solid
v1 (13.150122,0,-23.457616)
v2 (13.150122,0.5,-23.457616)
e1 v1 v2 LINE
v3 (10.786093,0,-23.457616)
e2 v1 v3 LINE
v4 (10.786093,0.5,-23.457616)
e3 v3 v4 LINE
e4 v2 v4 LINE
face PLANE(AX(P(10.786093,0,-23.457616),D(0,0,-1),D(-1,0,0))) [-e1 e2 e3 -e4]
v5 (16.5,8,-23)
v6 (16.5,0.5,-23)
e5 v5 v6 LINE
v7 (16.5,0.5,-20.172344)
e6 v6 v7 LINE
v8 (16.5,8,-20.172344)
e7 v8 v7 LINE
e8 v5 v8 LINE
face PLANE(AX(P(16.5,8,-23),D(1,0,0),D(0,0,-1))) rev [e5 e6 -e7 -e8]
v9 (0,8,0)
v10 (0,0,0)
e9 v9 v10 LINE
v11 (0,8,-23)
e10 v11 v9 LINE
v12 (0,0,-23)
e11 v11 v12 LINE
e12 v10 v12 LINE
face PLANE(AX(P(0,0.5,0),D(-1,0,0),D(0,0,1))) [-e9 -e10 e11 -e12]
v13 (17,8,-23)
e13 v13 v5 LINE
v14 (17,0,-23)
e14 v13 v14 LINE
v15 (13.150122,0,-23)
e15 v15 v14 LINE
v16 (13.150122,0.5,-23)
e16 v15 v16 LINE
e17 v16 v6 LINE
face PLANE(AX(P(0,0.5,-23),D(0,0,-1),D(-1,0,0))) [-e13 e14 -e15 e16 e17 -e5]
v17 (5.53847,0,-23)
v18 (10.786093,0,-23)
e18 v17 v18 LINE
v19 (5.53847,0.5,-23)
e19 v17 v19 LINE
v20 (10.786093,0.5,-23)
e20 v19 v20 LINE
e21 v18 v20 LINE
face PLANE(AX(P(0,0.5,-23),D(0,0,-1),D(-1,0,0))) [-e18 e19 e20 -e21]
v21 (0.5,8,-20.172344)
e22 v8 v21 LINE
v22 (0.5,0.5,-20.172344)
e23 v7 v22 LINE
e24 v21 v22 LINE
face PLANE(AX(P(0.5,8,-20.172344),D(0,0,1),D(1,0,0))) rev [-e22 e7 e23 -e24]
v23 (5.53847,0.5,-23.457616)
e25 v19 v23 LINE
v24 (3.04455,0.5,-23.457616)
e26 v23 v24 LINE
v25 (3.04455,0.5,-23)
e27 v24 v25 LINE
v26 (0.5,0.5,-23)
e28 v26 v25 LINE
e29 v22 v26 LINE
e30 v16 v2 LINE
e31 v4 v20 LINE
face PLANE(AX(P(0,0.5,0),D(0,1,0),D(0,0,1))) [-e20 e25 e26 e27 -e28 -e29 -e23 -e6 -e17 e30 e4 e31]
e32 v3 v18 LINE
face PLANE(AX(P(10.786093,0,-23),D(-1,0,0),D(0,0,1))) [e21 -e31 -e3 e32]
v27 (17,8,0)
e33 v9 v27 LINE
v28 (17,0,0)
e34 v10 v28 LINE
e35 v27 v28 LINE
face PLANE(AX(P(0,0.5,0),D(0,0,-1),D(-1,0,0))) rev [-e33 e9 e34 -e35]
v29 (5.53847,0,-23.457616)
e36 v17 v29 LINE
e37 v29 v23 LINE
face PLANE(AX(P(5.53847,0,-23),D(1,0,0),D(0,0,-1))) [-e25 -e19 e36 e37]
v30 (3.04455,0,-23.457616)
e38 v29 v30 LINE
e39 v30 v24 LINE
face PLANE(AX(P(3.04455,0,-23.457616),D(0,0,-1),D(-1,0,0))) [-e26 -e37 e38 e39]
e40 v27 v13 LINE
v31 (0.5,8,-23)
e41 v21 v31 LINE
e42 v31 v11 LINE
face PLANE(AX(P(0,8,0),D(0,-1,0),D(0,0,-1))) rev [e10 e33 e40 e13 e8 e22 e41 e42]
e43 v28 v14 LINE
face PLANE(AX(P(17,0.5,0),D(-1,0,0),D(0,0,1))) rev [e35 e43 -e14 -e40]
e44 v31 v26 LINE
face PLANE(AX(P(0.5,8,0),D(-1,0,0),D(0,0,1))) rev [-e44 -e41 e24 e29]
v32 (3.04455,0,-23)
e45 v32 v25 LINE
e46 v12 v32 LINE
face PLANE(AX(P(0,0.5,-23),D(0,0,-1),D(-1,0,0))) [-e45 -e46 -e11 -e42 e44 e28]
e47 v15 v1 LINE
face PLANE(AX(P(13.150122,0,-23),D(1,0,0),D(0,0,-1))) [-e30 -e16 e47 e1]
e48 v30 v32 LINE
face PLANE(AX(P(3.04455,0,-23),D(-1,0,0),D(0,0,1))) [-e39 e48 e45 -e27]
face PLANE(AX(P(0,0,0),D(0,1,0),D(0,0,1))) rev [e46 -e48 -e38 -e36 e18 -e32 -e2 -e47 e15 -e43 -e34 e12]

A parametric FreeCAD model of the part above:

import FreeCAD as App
import Part
import Sketcher

V = App.Vector


def add_polygon(sketch, points):
    """Adds a closed chain of lines whose ends are joined by coincident constraints."""
    first, n = sketch.GeometryCount, len(points)
    for a, b in zip(points, points[1:] + points[:1]):
        sketch.addGeometry(Part.LineSegment(App.Vector(*a, 0), App.Vector(*b, 0)), False)
    for i in range(n):
        sketch.addConstraint(Sketcher.Constraint("Coincident", first + i, 2, first + (i + 1) % n, 1))

doc = App.newDocument("Part")
params = doc.addObject("Spreadsheet::Sheet", "Params")
for row, (alias, value) in enumerate([
    ("sketch1_width", "17 mm"),
    ("sketch1_height", "23 mm"),
    ("pad1_length", "0.5 mm"),
    ("sketch2_height", "23 mm"),
    ("sketch2_width", "0.5 mm"),
    ("pad2_length", "7.5 mm"),
    ("sketch3_width", "16 mm"),
    ("pad3_length", "7.5 mm"),
    ("pad4_length", "0.5 mm"),
], start=1):
    params.set(f"A{row}", alias)
    params.set(f"B{row}", "=" + value)
    params.setAlias(f"B{row}", alias)

body = doc.addObject("PartDesign::Body", "Body")

sketch1 = body.newObject("Sketcher::SketchObject", "Sketch")
sketch1.AttachmentSupport = (doc.getObject("XZ_Plane"), [""])
sketch1.MapMode = "FlatFace"
add_polygon(sketch1, [(0, -23), (0, 0), (17, 0), (17, -23)])
sketch1.addConstraint(Sketcher.Constraint("Vertical", 0))
sketch1.addConstraint(Sketcher.Constraint("Horizontal", 1))
sketch1.addConstraint(Sketcher.Constraint("Vertical", 2))
sketch1.addConstraint(Sketcher.Constraint("Horizontal", 3))
sketch1.addConstraint(Sketcher.Constraint("Coincident", 0, 2, -1, 1))
sketch1.addConstraint(Sketcher.Constraint("DistanceX", 1, 1, 1, 2, 17.0))
sketch1.addConstraint(Sketcher.Constraint("DistanceY", 0, 1, 0, 2, 23.0))
sketch1.setExpression("Constraints[9]", "Params.sketch1_width")
sketch1.setExpression("Constraints[10]", "Params.sketch1_height")
pad1 = body.newObject("PartDesign::Pad", "Pad")
pad1.Profile = sketch1
pad1.setExpression("Length", "Params.pad1_length")
pad1.Reversed = True

sketch2 = body.newObject("Sketcher::SketchObject", "Sketch001")
sketch2.AttachmentSupport = (doc.getObject("XZ_Plane"), [""])
sketch2.MapMode = "FlatFace"
sketch2.AttachmentOffset = App.Placement(V(0, 0, -0.5), App.Rotation())
add_polygon(sketch2, [(0, -23), (0, 0), (0.5, 0), (0.5, -23)])
add_polygon(sketch2, [(16.5, -23), (16.5, 0), (17, 0), (17, -23)])
sketch2.addConstraint(Sketcher.Constraint("Vertical", 0))
sketch2.addConstraint(Sketcher.Constraint("Horizontal", 1))
sketch2.addConstraint(Sketcher.Constraint("Vertical", 2))
sketch2.addConstraint(Sketcher.Constraint("Horizontal", 3))
sketch2.addConstraint(Sketcher.Constraint("Vertical", 4))
sketch2.addConstraint(Sketcher.Constraint("Horizontal", 5))
sketch2.addConstraint(Sketcher.Constraint("Vertical", 6))
sketch2.addConstraint(Sketcher.Constraint("Horizontal", 7))
sketch2.addConstraint(Sketcher.Constraint("Coincident", 0, 2, -1, 1))
sketch2.addConstraint(Sketcher.Constraint("PointOnObject", 4, 2, -1))
sketch2.addConstraint(Sketcher.Constraint("Horizontal", 3, 2, 6, 2))
sketch2.addConstraint(Sketcher.Constraint("Equal", 3, 5))
sketch2.addConstraint(Sketcher.Constraint("DistanceY", 0, 1, 0, 2, 23.0))
sketch2.addConstraint(Sketcher.Constraint("DistanceX", 1, 1, 1, 2, 0.5))
sketch2.addConstraint(Sketcher.Constraint("DistanceX", -1, 1, 5, 2, 17.0))
sketch2.setExpression("Constraints[20]", "Params.sketch2_height")
sketch2.setExpression("Constraints[21]", "Params.sketch2_width")
pad2 = body.newObject("PartDesign::Pad", "Pad001")
pad2.Profile = sketch2
pad2.setExpression("Length", "Params.pad2_length")
pad2.Reversed = True

sketch3 = body.newObject("Sketcher::SketchObject", "Sketch002")
sketch3.AttachmentSupport = (doc.getObject("XZ_Plane"), [""])
sketch3.MapMode = "FlatFace"
sketch3.AttachmentOffset = App.Placement(V(0, 0, -0.5), App.Rotation())
add_polygon(sketch3, [(0, -20), (0, 0), (16, 0), (16, -20)])
sketch3.addConstraint(Sketcher.Constraint("Vertical", 0))
sketch3.addConstraint(Sketcher.Constraint("Horizontal", 1))
sketch3.addConstraint(Sketcher.Constraint("Vertical", 2))
sketch3.addConstraint(Sketcher.Constraint("Horizontal", 3))
sketch3.addConstraint(Sketcher.Constraint("PointOnObject", 0, 2, -1))
sketch3.addConstraint(Sketcher.Constraint("DistanceX", 1, 1, 1, 2, 16.0))
sketch3.addConstraint(Sketcher.Constraint("DistanceX", -1, 1, 0, 2, 0.5))
sketch3.addConstraint(Sketcher.Constraint("DistanceY", 0, 1, 0, 2, 20.172344))
sketch3.setExpression("Constraints[9]", "Params.sketch3_width")
pad3 = body.newObject("PartDesign::Pad", "Pad002")
pad3.Profile = sketch3
pad3.setExpression("Length", "Params.pad3_length")
pad3.Reversed = True

sketch4 = body.newObject("Sketcher::SketchObject", "Sketch003")
sketch4.AttachmentSupport = (doc.getObject("XZ_Plane"), [""])
sketch4.MapMode = "FlatFace"
sketch4.AttachmentOffset = App.Placement(V(0, 0, -0.5), App.Rotation())
add_polygon(sketch4, [(3.04, -23.46), (3.04, -23), (5.54, -23), (5.54, -23.46)])
add_polygon(sketch4, [(10.79, -23.46), (10.79, -23), (13.15, -23), (13.15, -23.46)])
sketch4.addConstraint(Sketcher.Constraint("Vertical", 0))
sketch4.addConstraint(Sketcher.Constraint("Horizontal", 1))
sketch4.addConstraint(Sketcher.Constraint("Vertical", 2))
sketch4.addConstraint(Sketcher.Constraint("Horizontal", 3))
sketch4.addConstraint(Sketcher.Constraint("Vertical", 4))
sketch4.addConstraint(Sketcher.Constraint("Horizontal", 5))
sketch4.addConstraint(Sketcher.Constraint("Vertical", 6))
sketch4.addConstraint(Sketcher.Constraint("Horizontal", 7))
sketch4.addConstraint(Sketcher.Constraint("Horizontal", 1, 2, 4, 2))
sketch4.addConstraint(Sketcher.Constraint("Horizontal", 3, 2, 6, 2))
sketch4.addConstraint(Sketcher.Constraint("DistanceY", 0, 2, -1, 1, 23.0))
sketch4.addConstraint(Sketcher.Constraint("DistanceX", 1, 1, 1, 2, 2.49392))
sketch4.addConstraint(Sketcher.Constraint("DistanceX", 5, 1, 5, 2, 2.364028))
sketch4.addConstraint(Sketcher.Constraint("DistanceY", 0, 1, 0, 2, 0.457616))
sketch4.addConstraint(Sketcher.Constraint("DistanceX", -1, 1, 0, 2, 3.04455))
sketch4.addConstraint(Sketcher.Constraint("DistanceX", -1, 1, 5, 2, 13.150122))
pad4 = body.newObject("PartDesign::Pad", "Pad003")
pad4.Profile = sketch4
pad4.setExpression("Length", "Params.pad4_length")

doc.recompute()
